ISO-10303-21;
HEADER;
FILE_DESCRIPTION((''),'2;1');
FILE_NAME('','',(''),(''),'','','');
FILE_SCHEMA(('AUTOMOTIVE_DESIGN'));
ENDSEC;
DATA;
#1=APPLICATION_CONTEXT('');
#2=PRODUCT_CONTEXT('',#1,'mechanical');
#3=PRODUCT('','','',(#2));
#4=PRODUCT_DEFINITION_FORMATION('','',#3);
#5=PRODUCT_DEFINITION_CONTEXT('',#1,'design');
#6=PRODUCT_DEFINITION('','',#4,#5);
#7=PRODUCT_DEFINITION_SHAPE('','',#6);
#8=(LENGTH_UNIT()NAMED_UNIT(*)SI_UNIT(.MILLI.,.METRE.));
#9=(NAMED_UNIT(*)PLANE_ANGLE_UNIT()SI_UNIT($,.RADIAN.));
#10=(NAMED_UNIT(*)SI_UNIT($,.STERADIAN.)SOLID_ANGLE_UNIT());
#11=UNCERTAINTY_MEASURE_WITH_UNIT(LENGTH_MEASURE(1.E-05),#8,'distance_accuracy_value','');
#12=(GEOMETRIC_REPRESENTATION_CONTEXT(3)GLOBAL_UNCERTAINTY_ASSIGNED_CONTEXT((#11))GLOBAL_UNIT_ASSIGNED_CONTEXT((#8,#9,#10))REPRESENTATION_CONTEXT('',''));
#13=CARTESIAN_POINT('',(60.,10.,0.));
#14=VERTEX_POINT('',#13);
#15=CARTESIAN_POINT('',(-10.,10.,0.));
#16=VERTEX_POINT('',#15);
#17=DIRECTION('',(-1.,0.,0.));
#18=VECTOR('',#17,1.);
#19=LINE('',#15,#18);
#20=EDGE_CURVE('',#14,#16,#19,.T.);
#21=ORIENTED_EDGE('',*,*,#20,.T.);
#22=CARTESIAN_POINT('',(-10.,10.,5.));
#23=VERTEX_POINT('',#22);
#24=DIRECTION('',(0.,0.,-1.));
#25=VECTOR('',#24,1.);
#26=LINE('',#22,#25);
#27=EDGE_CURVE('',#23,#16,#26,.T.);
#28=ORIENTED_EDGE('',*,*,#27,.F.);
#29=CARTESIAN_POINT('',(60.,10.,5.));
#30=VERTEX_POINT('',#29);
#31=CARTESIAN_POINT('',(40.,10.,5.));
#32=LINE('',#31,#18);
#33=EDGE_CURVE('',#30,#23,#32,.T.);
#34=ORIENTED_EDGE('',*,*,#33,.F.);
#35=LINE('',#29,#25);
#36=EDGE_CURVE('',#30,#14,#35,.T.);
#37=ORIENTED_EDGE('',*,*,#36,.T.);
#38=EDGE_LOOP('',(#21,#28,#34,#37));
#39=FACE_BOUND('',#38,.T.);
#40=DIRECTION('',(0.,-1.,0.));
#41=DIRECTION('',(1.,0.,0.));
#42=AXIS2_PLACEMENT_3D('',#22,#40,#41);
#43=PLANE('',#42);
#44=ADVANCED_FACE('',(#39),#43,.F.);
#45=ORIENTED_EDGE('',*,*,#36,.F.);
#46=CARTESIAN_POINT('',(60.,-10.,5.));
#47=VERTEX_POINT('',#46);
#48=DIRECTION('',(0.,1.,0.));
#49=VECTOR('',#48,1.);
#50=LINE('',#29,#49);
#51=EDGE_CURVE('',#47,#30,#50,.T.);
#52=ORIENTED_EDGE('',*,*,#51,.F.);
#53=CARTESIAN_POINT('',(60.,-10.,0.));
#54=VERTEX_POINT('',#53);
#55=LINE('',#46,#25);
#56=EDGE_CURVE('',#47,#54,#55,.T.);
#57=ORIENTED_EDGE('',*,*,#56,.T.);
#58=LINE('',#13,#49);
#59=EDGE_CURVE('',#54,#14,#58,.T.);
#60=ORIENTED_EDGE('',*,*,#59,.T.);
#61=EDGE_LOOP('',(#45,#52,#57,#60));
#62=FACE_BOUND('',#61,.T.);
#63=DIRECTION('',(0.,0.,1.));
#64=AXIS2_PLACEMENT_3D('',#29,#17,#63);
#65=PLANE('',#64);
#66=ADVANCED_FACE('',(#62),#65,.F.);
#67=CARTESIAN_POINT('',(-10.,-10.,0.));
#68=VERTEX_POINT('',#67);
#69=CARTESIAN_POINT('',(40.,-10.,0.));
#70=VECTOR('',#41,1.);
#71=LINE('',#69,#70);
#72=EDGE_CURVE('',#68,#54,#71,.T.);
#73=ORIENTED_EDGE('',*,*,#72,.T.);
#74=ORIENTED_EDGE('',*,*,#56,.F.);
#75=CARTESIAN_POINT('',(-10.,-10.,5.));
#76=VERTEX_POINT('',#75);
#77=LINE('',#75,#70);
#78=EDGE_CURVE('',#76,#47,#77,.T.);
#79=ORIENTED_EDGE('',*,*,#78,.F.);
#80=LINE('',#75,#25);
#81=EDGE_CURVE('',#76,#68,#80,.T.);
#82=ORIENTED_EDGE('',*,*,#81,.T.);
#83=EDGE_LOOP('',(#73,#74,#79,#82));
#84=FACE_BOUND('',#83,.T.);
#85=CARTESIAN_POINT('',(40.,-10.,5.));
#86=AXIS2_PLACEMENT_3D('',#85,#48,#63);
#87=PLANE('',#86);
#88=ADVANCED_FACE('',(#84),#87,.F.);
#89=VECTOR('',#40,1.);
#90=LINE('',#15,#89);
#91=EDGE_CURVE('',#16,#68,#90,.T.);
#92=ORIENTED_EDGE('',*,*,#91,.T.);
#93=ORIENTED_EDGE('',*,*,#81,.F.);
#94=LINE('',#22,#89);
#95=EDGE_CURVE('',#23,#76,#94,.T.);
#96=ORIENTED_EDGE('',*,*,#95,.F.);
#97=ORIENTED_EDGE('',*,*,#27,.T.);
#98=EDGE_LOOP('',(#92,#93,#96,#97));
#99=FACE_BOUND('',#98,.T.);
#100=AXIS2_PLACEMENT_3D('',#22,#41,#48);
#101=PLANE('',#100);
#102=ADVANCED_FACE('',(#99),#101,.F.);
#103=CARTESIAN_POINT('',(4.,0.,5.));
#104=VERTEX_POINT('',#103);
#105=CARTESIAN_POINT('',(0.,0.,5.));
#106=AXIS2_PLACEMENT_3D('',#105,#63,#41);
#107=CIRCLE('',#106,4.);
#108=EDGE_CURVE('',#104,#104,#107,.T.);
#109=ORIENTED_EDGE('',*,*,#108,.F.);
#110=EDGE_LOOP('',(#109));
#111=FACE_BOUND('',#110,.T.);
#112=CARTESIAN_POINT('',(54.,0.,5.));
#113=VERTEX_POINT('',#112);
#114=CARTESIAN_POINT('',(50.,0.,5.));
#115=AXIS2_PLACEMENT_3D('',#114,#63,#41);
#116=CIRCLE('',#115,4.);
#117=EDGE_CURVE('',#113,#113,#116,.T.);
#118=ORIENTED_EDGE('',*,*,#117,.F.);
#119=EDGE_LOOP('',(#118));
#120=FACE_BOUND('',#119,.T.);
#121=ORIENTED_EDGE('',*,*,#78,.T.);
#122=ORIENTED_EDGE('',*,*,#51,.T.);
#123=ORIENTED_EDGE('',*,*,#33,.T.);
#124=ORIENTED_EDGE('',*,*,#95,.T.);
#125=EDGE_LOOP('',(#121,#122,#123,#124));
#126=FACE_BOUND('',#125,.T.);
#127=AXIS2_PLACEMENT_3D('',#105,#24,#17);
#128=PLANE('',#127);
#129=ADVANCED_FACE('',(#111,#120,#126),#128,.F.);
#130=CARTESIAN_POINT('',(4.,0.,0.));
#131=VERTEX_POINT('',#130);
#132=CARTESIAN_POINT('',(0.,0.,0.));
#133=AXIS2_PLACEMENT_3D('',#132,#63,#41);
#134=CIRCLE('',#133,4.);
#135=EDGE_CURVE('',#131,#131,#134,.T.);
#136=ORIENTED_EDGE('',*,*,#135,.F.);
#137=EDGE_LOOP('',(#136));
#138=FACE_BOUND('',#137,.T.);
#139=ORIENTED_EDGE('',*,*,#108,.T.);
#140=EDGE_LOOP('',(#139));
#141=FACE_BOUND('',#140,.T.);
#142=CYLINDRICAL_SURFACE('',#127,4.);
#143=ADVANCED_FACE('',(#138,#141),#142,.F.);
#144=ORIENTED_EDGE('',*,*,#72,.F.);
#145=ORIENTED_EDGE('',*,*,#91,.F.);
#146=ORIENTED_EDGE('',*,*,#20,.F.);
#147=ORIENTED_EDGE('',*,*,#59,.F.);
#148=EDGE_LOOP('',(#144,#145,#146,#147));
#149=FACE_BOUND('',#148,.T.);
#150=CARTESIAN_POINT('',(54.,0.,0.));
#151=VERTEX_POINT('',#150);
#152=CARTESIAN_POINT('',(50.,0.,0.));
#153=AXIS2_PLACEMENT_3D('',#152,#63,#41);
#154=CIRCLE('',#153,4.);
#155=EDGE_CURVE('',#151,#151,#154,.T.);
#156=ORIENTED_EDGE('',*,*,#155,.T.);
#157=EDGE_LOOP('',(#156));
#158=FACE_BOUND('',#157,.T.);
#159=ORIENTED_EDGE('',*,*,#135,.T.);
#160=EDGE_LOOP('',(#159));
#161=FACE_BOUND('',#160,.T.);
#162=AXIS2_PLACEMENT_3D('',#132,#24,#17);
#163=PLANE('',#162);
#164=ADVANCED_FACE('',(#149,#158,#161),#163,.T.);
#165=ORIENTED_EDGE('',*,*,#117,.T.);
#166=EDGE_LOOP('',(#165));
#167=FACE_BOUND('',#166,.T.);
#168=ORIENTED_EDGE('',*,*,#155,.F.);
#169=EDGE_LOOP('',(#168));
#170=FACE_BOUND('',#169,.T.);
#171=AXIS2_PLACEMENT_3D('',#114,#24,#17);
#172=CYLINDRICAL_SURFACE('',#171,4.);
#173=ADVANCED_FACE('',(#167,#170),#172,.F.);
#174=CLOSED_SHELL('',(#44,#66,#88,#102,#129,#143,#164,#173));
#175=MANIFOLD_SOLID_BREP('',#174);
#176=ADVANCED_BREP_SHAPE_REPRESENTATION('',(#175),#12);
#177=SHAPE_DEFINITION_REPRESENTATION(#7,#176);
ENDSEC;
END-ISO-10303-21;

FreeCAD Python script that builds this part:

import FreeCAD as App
import Part
import Sketcher
from FreeCAD import Vector
Q = App.Units.Quantity


def add_polygon(sketch, points):
    """Adds a closed chain of lines whose ends are joined by coincident constraints."""
    first, n = sketch.GeometryCount, len(points)
    for a, b in zip(points, points[1:] + points[:1]):
        sketch.addGeometry(Part.LineSegment(App.Vector(*a, 0), App.Vector(*b, 0)), False)
    for i in range(n):
        sketch.addConstraint(Sketcher.Constraint("Coincident", first + i, 2, first + (i + 1) % n, 1))

doc = App.newDocument("Part")
params = doc.addObject("Spreadsheet::Sheet", "Params")
for row, (alias, value) in enumerate([
    ("sketch1_diameter", "8 mm"),
    ("sketch1_width", "70 mm"),
    ("sketch1_height", "20 mm"),
    ("pad1_length", "5 mm"),
], start=1):
    params.set(f"A{row}", alias)
    params.set(f"B{row}", "=" + value)
    params.setAlias(f"B{row}", alias)

body = doc.addObject("PartDesign::Body", "Body")

# Sketch on XY plane
sketch1 = body.newObject("Sketcher::SketchObject", "Sketch")
sketch1.AttachmentSupport = (doc.getObject("XY_Plane"), [""])
sketch1.MapMode = "FlatFace"
add_polygon(sketch1, [(60, -10), (60, 10), (-10, 10), (-10, -10)])  # lines 0-3
sketch1.addGeometry(Part.Circle(Vector(0, 0, 0), Vector(0, 0, 1), 4), False)  # 4
sketch1.addGeometry(Part.Circle(Vector(50, 0, 0), Vector(0, 0, 1), 4), False)  # 5
sketch1.addConstraint(Sketcher.Constraint("Vertical", 0))
sketch1.addConstraint(Sketcher.Constraint("Horizontal", 1))
sketch1.addConstraint(Sketcher.Constraint("Vertical", 2))
sketch1.addConstraint(Sketcher.Constraint("Horizontal", 3))
sketch1.addConstraint(Sketcher.Constraint("Coincident", 4, 3, -1, 1))
sketch1.addConstraint(Sketcher.Constraint("Equal", 4, 5))
sketch1.addConstraint(Sketcher.Constraint("PointOnObject", 5, 3, -1))
sketch1.addConstraint(Sketcher.Constraint("Diameter", 4, Q("8 mm")))
sketch1.addConstraint(Sketcher.Constraint("DistanceX", 1, 2, 1, 1, Q("70 mm")))
sketch1.addConstraint(Sketcher.Constraint("DistanceY", 0, 1, 0, 2, Q("20 mm")))
sketch1.addConstraint(Sketcher.Constraint("DistanceX", -1, 1, 5, 3, Q("50 mm")))
sketch1.addConstraint(Sketcher.Constraint("DistanceX", -1, 1, 0, 2, Q("60 mm")))
sketch1.addConstraint(Sketcher.Constraint("DistanceY", -1, 1, 0, 2, Q("10 mm")))
sketch1.setExpression("Constraints[11]", "Params.sketch1_diameter")
sketch1.setExpression("Constraints[12]", "Params.sketch1_width")
sketch1.setExpression("Constraints[13]", "Params.sketch1_height")
pad1 = body.newObject("PartDesign::Pad", "Pad")
pad1.Profile = sketch1
pad1.setExpression("Length", "Params.pad1_length")

doc.recompute()
